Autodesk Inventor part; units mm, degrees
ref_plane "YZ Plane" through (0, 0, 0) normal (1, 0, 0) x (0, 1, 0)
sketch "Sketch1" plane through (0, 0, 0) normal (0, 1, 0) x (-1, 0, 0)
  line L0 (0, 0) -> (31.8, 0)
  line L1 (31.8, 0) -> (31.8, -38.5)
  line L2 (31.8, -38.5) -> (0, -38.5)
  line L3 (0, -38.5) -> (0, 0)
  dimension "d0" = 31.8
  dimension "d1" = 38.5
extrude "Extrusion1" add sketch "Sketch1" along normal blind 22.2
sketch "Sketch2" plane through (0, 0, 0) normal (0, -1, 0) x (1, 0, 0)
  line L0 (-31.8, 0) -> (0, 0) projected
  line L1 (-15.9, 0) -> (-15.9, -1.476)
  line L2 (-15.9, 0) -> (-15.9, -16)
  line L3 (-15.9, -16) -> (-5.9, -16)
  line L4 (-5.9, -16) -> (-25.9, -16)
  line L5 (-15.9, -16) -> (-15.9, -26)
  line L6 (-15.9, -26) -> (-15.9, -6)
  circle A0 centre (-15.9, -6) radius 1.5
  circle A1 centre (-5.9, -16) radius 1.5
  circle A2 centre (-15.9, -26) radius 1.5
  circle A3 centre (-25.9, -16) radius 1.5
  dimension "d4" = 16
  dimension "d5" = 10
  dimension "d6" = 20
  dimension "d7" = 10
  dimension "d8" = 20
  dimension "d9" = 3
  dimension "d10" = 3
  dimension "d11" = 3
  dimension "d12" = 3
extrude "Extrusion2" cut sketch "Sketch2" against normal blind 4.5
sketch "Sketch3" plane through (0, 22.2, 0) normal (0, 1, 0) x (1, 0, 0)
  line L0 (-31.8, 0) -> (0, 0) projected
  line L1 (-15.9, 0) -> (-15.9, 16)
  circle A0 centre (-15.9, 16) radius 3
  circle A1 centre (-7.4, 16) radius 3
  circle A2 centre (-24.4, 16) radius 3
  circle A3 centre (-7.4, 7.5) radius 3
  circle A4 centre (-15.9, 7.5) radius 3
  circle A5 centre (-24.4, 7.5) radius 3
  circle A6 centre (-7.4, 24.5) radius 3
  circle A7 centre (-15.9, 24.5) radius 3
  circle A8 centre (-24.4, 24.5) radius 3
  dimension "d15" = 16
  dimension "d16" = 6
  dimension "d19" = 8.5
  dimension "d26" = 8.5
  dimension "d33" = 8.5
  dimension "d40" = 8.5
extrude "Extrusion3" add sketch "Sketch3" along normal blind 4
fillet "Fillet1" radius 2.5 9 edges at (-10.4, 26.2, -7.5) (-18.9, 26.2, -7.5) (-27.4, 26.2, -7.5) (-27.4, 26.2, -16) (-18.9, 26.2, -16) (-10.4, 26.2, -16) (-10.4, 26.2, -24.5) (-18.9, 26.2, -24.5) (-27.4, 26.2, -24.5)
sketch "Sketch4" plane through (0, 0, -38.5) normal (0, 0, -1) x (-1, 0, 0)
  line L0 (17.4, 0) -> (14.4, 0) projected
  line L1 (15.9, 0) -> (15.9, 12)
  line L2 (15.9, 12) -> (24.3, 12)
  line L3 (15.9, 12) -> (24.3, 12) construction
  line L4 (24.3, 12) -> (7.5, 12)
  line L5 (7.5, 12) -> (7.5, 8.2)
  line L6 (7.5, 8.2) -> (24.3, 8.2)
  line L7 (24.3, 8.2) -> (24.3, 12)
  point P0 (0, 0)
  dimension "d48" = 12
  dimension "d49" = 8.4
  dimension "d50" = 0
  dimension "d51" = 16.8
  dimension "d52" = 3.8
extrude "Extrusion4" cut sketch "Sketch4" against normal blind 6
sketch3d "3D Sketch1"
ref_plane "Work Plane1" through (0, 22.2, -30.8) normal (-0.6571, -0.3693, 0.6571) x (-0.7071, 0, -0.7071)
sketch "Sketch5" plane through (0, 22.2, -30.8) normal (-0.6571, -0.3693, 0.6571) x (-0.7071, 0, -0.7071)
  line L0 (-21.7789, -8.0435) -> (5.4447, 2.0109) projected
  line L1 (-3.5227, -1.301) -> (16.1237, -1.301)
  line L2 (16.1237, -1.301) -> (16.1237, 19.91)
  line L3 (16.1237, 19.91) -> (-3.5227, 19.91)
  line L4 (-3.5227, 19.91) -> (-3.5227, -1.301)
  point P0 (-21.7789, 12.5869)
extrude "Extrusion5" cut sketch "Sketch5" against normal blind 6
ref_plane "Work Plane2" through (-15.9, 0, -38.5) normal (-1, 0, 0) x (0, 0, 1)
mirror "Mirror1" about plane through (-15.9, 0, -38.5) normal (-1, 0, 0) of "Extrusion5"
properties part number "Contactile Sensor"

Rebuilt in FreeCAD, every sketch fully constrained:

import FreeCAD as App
import Part
import Sketcher


def edges_at(feature, points):
    """Names of the edges that pass closest to the given points."""
    edges = feature.Shape.Edges
    near = lambda p: min(range(len(edges)), key=lambda i: edges[i].distToShape(Part.Vertex(*p))[0])
    return sorted({f"Edge{near(p) + 1}" for p in points})


def add_polygon(sketch, points):
    """Adds a closed chain of lines whose ends are joined by coincident constraints."""
    first, n = sketch.GeometryCount, len(points)
    for a, b in zip(points, points[1:] + points[:1]):
        sketch.addGeometry(Part.LineSegment(App.Vector(*a, 0), App.Vector(*b, 0)), False)
    for i in range(n):
        sketch.addConstraint(Sketcher.Constraint("Coincident", first + i, 2, first + (i + 1) % n, 1))

doc = App.newDocument("Part")
body = doc.addObject("PartDesign::Body", "Body")

sketch1 = body.newObject("Sketcher::SketchObject", "Sketch")
sketch1.AttachmentSupport = (doc.getObject("XZ_Plane"), [""])
sketch1.MapMode = "FlatFace"
add_polygon(sketch1, [(-32, 0), (0, 0), (0, -38), (-32, -38)])
sketch1.addConstraint(Sketcher.Constraint("Horizontal", 0))
sketch1.addConstraint(Sketcher.Constraint("Vertical", 1))
sketch1.addConstraint(Sketcher.Constraint("Horizontal", 2))
sketch1.addConstraint(Sketcher.Constraint("Vertical", 3))
sketch1.addConstraint(Sketcher.Constraint("Coincident", 0, 2, -1, 1))
sketch1.addConstraint(Sketcher.Constraint("DistanceX", 0, 1, 0, 2, 31.8))
sketch1.addConstraint(Sketcher.Constraint("DistanceY", 1, 2, 1, 1, 38.5))
pad1 = body.newObject("PartDesign::Pad", "Pad")
pad1.Profile = sketch1
pad1.Length = 22.2
pad1.Reversed = True

sketch2 = body.newObject("Sketcher::SketchObject", "Sketch001")
sketch2.AttachmentSupport = (doc.getObject("XZ_Plane"), [""])
sketch2.MapMode = "FlatFace"
sketch2.addGeometry(Part.Circle(App.Vector(-15.9, -6, 0), App.Vector(0, 0, 1), 1.5), False)
sketch2.addGeometry(Part.Circle(App.Vector(-5.9, -16, 0), App.Vector(0, 0, 1), 1.5), False)
sketch2.addGeometry(Part.Circle(App.Vector(-15.9, -26, 0), App.Vector(0, 0, 1), 1.5), False)
sketch2.addGeometry(Part.Circle(App.Vector(-25.9, -16, 0), App.Vector(0, 0, 1), 1.5), False)
sketch2.addConstraint(Sketcher.Constraint("Equal", 0, 1))
sketch2.addConstraint(Sketcher.Constraint("Equal", 1, 2))
sketch2.addConstraint(Sketcher.Constraint("Equal", 2, 3))
sketch2.addConstraint(Sketcher.Constraint("Horizontal", 1, 3, 3, 3))
sketch2.addConstraint(Sketcher.Constraint("Vertical", 0, 3, 2, 3))
sketch2.addConstraint(Sketcher.Constraint("Diameter", 0, 3.0))
sketch2.addConstraint(Sketcher.Constraint("DistanceY", 1, 3, -1, 1, 16.0))
sketch2.addConstraint(Sketcher.Constraint("DistanceX", 0, 3, 1, 3, 10.0))
sketch2.addConstraint(Sketcher.Constraint("DistanceY", 1, 3, 0, 3, 10.0))
sketch2.addConstraint(Sketcher.Constraint("DistanceY", 2, 3, 1, 3, 10.0))
sketch2.addConstraint(Sketcher.Constraint("DistanceX", 3, 3, 0, 3, 10.0))
sketch2.addConstraint(Sketcher.Constraint("DistanceX", 0, 3, -1, 1, 15.9))
pocket1 = body.newObject("PartDesign::Pocket", "Pocket")
pocket1.Profile = sketch2
pocket1.Length = 4.5

sketch3 = body.newObject("Sketcher::SketchObject", "Sketch002")
sketch3.AttachmentSupport = (doc.getObject("XZ_Plane"), [""])
sketch3.MapMode = "FlatFace"
sketch3.AttachmentOffset = App.Placement(App.Vector(0, 0, -22.2), App.Rotation())
sketch3.addGeometry(Part.Circle(App.Vector(-15.9, -7.5, 0), App.Vector(0, 0, 1), 3), False)
sketch3.addGeometry(Part.Circle(App.Vector(-15.9, -16, 0), App.Vector(0, 0, 1), 3), False)
sketch3.addGeometry(Part.Circle(App.Vector(-7.4, -16, 0), App.Vector(0, 0, 1), 3), False)
sketch3.addGeometry(Part.Circle(App.Vector(-24.4, -16, 0), App.Vector(0, 0, 1), 3), False)
sketch3.addGeometry(Part.Circle(App.Vector(-7.4, -7.5, 0), App.Vector(0, 0, 1), 3), False)
sketch3.addGeometry(Part.Circle(App.Vector(-24.4, -7.5, 0), App.Vector(0, 0, 1), 3), False)
sketch3.addGeometry(Part.Circle(App.Vector(-7.4, -24.5, 0), App.Vector(0, 0, 1), 3), False)
sketch3.addGeometry(Part.Circle(App.Vector(-15.9, -24.5, 0), App.Vector(0, 0, 1), 3), False)
sketch3.addGeometry(Part.Circle(App.Vector(-24.4, -24.5, 0), App.Vector(0, 0, 1), 3), False)
sketch3.addConstraint(Sketcher.Constraint("Equal", 0, 1))
sketch3.addConstraint(Sketcher.Constraint("Equal", 1, 2))
sketch3.addConstraint(Sketcher.Constraint("Equal", 2, 3))
sketch3.addConstraint(Sketcher.Constraint("Equal", 3, 4))
sketch3.addConstraint(Sketcher.Constraint("Equal", 4, 5))
sketch3.addConstraint(Sketcher.Constraint("Equal", 5, 6))
sketch3.addConstraint(Sketcher.Constraint("Equal", 6, 7))
sketch3.addConstraint(Sketcher.Constraint("Equal", 7, 8))
sketch3.addConstraint(Sketcher.Constraint("Horizontal", 1, 3, 2, 3))
sketch3.addConstraint(Sketcher.Constraint("Horizontal", 2, 3, 3, 3))
sketch3.addConstraint(Sketcher.Constraint("Horizontal", 0, 3, 4, 3))
sketch3.addConstraint(Sketcher.Constraint("Horizontal", 4, 3, 5, 3))
sketch3.addConstraint(Sketcher.Constraint("Horizontal", 6, 3, 7, 3))
sketch3.addConstraint(Sketcher.Constraint("Horizontal", 7, 3, 8, 3))
sketch3.addConstraint(Sketcher.Constraint("Vertical", 0, 3, 1, 3))
sketch3.addConstraint(Sketcher.Constraint("Vertical", 2, 3, 4, 3))
sketch3.addConstraint(Sketcher.Constraint("Vertical", 3, 3, 5, 3))
sketch3.addConstraint(Sketcher.Constraint("Vertical", 4, 3, 6, 3))
sketch3.addConstraint(Sketcher.Constraint("Vertical", 1, 3, 7, 3))
sketch3.addConstraint(Sketcher.Constraint("Vertical", 5, 3, 8, 3))
sketch3.addConstraint(Sketcher.Constraint("Diameter", 0, 6.0))
sketch3.addConstraint(Sketcher.Constraint("DistanceY", 1, 3, -1, 1, 16.0))
sketch3.addConstraint(Sketcher.Constraint("DistanceY", 1, 3, 0, 3, 8.5))
sketch3.addConstraint(Sketcher.Constraint("DistanceX", 1, 3, 2, 3, 8.5))
sketch3.addConstraint(Sketcher.Constraint("DistanceX", 3, 3, 1, 3, 8.5))
sketch3.addConstraint(Sketcher.Constraint("DistanceY", 6, 3, 2, 3, 8.5))
sketch3.addConstraint(Sketcher.Constraint("DistanceX", 0, 3, -1, 1, 15.9))
pad2 = body.newObject("PartDesign::Pad", "Pad001")
pad2.Profile = sketch3
pad2.Length = 4
pad2.Reversed = True
doc.recompute()

fillet = body.newObject("PartDesign::Fillet", "Fillet")
fillet.Base = (pad2, edges_at(pad2, [
    (-10.4, 26.2, -7.5),
    (-18.9, 26.2, -7.5),
    (-27.4, 26.2, -7.5),
    (-27.4, 26.2, -16),
    (-18.9, 26.2, -16),
    (-10.4, 26.2, -16),
    (-10.4, 26.2, -24.5),
    (-18.9, 26.2, -24.5),
    (-27.4, 26.2, -24.5),
]))
fillet.Radius = 2.5

sketch4 = body.newObject("Sketcher::SketchObject", "Sketch003")
sketch4.AttachmentSupport = (doc.getObject("XY_Plane"), [""])
sketch4.MapMode = "FlatFace"
sketch4.AttachmentOffset = App.Placement(App.Vector(0, 0, -38.5), App.Rotation())
add_polygon(sketch4, [(-7.5, 8.2), (-24.3, 8.2), (-24.3, 12), (-7.5, 12)])
sketch4.addConstraint(Sketcher.Constraint("Horizontal", 0))
sketch4.addConstraint(Sketcher.Constraint("Vertical", 1))
sketch4.addConstraint(Sketcher.Constraint("Horizontal", 2))
sketch4.addConstraint(Sketcher.Constraint("Vertical", 3))
sketch4.addConstraint(Sketcher.Constraint("DistanceX", 0, 2, 0, 1, 16.8))
sketch4.addConstraint(Sketcher.Constraint("DistanceY", 1, 1, 1, 2, 3.8))
sketch4.addConstraint(Sketcher.Constraint("DistanceY", -1, 1, 1, 2, 12.0))
sketch4.addConstraint(Sketcher.Constraint("DistanceX", 0, 2, -1, 1, 24.3))
pocket2 = body.newObject("PartDesign::Pocket", "Pocket001")
pocket2.Profile = sketch4
pocket2.Length = 6
pocket2.Reversed = True

sketch5 = body.newObject("Sketcher::SketchObject", "Sketch004")
sketch5.Placement = App.Placement(App.Vector(0, 22.2, -30.8), App.Rotation(App.Vector(-0.707106781, 0, -0.707106781), App.Vector(0.261141936, -0.929306073, -0.261141936), App.Vector(-0.657118626, -0.369310468, 0.657118626), "ZXY"))
add_polygon(sketch5, [(-4, 20), (-4, -1), (16, -1), (16, 20)])
sketch5.addConstraint(Sketcher.Constraint("Vertical", 0))
sketch5.addConstraint(Sketcher.Constraint("Horizontal", 1))
sketch5.addConstraint(Sketcher.Constraint("Vertical", 2))
sketch5.addConstraint(Sketcher.Constraint("Horizontal", 3))
sketch5.addConstraint(Sketcher.Constraint("DistanceY", 0, 2, 0, 1, 21.211))
sketch5.addConstraint(Sketcher.Constraint("DistanceY", -1, 1, 2, 2, 19.91))
sketch5.addConstraint(Sketcher.Constraint("DistanceX", 1, 1, 1, 2, 19.6464))
sketch5.addConstraint(Sketcher.Constraint("DistanceX", 0, 2, -1, 1, 3.5227))
pocket3 = body.newObject("PartDesign::Pocket", "Pocket002")
pocket3.Profile = sketch5
pocket3.Length = 6
doc.recompute()

datumplane = body.newObject("PartDesign::Plane", "DatumPlane")
datumplane.AttachmentSupport = (doc.getObject("YZ_Plane"), [""])
datumplane.MapMode = "FlatFace"
datumplane.AttachmentOffset = App.Placement(App.Vector(0, 0, -15.9), App.Rotation())
mirrored = body.newObject("PartDesign::Mirrored", "Mirrored")
mirrored.Originals = [pocket3]
mirrored.MirrorPlane = (datumplane, [""])
body.Tip = mirrored

doc.recompute()
